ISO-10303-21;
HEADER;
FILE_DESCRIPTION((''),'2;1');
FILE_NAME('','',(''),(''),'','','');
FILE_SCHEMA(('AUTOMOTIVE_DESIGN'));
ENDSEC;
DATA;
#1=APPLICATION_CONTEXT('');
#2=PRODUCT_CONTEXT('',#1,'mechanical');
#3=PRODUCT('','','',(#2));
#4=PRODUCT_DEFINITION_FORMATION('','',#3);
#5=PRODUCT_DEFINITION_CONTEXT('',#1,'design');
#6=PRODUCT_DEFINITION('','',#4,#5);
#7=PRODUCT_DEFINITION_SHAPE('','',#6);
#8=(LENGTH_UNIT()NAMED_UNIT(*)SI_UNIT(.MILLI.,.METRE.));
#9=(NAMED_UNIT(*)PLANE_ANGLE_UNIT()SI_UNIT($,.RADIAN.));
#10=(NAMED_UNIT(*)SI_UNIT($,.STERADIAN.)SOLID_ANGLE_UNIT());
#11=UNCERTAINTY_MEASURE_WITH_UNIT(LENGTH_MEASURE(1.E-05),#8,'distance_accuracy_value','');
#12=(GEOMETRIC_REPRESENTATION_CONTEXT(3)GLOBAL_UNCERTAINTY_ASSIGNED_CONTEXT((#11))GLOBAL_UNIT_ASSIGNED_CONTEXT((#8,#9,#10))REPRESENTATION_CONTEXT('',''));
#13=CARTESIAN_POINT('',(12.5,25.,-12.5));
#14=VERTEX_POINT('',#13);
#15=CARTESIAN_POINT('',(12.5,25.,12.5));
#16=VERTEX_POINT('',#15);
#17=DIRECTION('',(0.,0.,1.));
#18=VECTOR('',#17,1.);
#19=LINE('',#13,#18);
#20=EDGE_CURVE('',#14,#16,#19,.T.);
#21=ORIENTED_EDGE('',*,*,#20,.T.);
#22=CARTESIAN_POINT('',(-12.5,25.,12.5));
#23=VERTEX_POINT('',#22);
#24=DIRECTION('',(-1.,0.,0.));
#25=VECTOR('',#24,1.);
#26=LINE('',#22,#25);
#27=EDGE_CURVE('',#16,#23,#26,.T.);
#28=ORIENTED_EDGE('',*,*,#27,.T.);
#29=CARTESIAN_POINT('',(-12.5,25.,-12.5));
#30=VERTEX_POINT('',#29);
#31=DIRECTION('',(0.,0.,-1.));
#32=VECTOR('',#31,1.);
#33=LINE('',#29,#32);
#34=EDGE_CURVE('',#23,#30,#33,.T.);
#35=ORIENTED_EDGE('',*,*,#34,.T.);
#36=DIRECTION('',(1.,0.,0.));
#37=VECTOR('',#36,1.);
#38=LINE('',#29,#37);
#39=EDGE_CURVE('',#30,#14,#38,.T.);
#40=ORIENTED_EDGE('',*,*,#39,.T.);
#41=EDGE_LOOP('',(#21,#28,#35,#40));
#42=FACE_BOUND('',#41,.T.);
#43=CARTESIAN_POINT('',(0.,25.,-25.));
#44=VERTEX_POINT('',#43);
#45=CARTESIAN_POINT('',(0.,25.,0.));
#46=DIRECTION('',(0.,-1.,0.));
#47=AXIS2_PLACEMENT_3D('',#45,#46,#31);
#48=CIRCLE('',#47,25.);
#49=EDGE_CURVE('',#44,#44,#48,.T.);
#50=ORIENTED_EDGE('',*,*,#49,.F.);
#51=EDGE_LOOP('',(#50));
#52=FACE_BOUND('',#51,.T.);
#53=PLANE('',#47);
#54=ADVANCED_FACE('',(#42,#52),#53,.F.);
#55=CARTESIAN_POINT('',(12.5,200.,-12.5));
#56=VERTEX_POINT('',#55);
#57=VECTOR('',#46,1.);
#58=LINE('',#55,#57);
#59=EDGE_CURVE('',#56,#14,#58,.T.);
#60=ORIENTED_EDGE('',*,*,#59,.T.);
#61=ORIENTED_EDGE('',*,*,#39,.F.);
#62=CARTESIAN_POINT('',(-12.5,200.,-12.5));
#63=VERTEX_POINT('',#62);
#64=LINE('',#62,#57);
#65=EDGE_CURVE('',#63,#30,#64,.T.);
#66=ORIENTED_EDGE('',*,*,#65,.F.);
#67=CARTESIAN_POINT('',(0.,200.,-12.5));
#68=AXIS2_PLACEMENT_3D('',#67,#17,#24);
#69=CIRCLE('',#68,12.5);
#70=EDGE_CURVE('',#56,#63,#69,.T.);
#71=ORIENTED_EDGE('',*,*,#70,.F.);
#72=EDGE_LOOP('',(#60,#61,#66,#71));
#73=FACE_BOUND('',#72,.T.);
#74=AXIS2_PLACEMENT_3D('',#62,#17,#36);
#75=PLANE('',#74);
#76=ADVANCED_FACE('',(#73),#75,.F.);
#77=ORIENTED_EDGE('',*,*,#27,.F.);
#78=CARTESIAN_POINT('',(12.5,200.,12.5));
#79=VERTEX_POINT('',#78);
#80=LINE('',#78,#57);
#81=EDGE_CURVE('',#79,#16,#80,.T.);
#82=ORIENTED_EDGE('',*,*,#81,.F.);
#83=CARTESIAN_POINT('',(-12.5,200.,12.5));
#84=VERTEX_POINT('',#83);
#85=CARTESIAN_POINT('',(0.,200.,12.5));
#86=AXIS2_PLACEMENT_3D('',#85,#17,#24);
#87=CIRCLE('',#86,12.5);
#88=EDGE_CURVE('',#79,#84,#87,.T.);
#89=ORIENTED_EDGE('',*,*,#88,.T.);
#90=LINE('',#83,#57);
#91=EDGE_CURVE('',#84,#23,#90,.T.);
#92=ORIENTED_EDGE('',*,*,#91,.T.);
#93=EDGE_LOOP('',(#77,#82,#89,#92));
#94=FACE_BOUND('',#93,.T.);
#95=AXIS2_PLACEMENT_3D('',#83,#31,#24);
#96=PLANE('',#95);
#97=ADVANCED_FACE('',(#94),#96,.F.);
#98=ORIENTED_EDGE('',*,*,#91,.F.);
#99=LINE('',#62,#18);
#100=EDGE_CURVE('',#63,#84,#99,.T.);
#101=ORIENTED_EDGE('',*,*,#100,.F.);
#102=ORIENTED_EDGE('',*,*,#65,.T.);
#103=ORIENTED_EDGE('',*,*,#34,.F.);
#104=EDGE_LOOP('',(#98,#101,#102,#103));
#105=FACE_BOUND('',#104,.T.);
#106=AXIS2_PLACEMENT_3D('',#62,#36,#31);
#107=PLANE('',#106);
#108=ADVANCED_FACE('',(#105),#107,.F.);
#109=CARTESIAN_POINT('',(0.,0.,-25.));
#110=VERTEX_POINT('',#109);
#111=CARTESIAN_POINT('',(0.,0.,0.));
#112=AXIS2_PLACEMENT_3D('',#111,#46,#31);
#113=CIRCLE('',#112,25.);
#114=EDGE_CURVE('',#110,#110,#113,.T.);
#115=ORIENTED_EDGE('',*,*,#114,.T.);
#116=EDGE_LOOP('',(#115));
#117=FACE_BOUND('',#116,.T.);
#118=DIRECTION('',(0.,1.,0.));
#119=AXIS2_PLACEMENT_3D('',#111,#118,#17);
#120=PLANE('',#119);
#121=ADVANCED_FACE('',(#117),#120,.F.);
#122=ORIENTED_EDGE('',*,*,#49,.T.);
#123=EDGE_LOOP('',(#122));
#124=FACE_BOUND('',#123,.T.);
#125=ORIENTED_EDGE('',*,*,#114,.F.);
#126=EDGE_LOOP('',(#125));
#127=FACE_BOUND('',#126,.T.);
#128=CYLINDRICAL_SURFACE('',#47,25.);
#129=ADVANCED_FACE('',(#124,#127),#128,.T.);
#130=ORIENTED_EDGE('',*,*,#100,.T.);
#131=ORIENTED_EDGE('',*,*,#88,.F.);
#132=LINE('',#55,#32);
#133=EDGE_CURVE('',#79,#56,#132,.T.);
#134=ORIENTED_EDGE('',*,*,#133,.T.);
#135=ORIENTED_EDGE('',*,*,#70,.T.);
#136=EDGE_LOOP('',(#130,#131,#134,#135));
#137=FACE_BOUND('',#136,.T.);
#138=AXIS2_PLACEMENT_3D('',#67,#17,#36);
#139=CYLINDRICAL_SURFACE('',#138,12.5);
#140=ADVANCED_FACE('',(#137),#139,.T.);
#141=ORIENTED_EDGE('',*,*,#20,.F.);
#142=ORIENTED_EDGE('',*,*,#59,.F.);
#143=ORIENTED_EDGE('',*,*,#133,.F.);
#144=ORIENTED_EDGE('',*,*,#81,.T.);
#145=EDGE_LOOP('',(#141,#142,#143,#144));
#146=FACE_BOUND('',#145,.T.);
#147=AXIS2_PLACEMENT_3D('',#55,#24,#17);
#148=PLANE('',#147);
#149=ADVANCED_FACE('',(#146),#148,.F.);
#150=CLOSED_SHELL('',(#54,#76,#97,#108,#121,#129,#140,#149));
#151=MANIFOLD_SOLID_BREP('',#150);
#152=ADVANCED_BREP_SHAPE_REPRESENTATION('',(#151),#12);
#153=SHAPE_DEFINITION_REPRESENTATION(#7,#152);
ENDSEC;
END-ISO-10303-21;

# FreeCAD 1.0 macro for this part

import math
import FreeCAD as App
import Part
import Sketcher
from FreeCAD import Vector

doc = App.newDocument("Part")
params = doc.addObject("Spreadsheet::Sheet", "Params")
for row, (alias, value) in enumerate([
    ("sketch1_width", "25 mm"),
    ("pad1_length", "200 mm"),
    ("sketch2_radius", "12.5 mm"),
    ("pad2_length", "25 mm"),
    ("sketch3_diameter", "50 mm"),
    ("pad3_length", "25 mm"),
], start=1):
    params.set(f"A{row}", alias)
    params.set(f"B{row}", "=" + value)
    params.setAlias(f"B{row}", alias)

body = doc.addObject("PartDesign::Body", "Body")

sketch1 = doc.addObject("Sketcher::SketchObject", "Sketch")
body.addObject(sketch1)
sketch1.AttachmentSupport = (doc.XZ_Plane, [""])
sketch1.MapMode = "FlatFace"
sketch1.addGeometry([
    Part.LineSegment(Vector(-12.5, -12.5, 0), Vector(-12.5, 12.5, 0)),
    Part.LineSegment(Vector(-12.5, 12.5, 0), Vector(12.5, 12.5, 0)),
    Part.LineSegment(Vector(12.5, 12.5, 0), Vector(12.5, -12.5, 0)),
    Part.LineSegment(Vector(12.5, -12.5, 0), Vector(-12.5, -12.5, 0)),
], False)
sketch1.addConstraint([
    Sketcher.Constraint("Coincident", 0, 2, 1, 1),
    Sketcher.Constraint("Coincident", 1, 2, 2, 1),
    Sketcher.Constraint("Coincident", 2, 2, 3, 1),
    Sketcher.Constraint("Coincident", 3, 2, 0, 1),
    Sketcher.Constraint("Vertical", 0),
    Sketcher.Constraint("Horizontal", 1),
    Sketcher.Constraint("Vertical", 2),
    Sketcher.Constraint("Horizontal", 3),
    Sketcher.Constraint("Symmetric", 0, 2, 2, 2, -1, 1),
    Sketcher.Constraint("Equal", 3, 0),
    Sketcher.Constraint("DistanceX", 1, 1, 1, 2, 25.0),
])
sketch1.setExpression("Constraints[10]", "Params.sketch1_width")
pad1 = doc.addObject("PartDesign::Pad", "Pad")
body.addObject(pad1)
pad1.Profile = sketch1
pad1.setExpression("Length", "Params.pad1_length")
pad1.Reversed = True

sketch2 = doc.addObject("Sketcher::SketchObject", "Sketch001")
body.addObject(sketch2)
sketch2.AttachmentSupport = (doc.XY_Plane, [""])
sketch2.MapMode = "FlatFace"
sketch2.AttachmentOffset = App.Placement(Vector(0, 0, 12.5), App.Rotation())
sketch2.addGeometry([
    Part.LineSegment(Vector(-12.5, 200, 0), Vector(12.5, 200, 0)),
    Part.ArcOfCircle(Part.Circle(Vector(0, 200, 0), Vector(0, 0, 1), 12.5), math.radians(0), math.radians(180)),
], False)
sketch2.addConstraint([
    Sketcher.Constraint("Coincident", 0, 1, 1, 2),
    Sketcher.Constraint("Coincident", 1, 1, 0, 2),
    Sketcher.Constraint("Horizontal", 0),
    Sketcher.Constraint("PointOnObject", 1, 3, -2),
    Sketcher.Constraint("Horizontal", 1, 3, 0, 1),
    Sketcher.Constraint("Radius", 1, 12.5),
    Sketcher.Constraint("DistanceY", -1, 1, 1, 3, 200.0),
])
sketch2.setExpression("Constraints[5]", "Params.sketch2_radius")
pad2 = doc.addObject("PartDesign::Pad", "Pad001")
body.addObject(pad2)
pad2.Profile = sketch2
pad2.setExpression("Length", "Params.pad2_length")
pad2.Reversed = True

sketch3 = doc.addObject("Sketcher::SketchObject", "Sketch002")
body.addObject(sketch3)
sketch3.AttachmentSupport = (doc.XZ_Plane, [""])
sketch3.MapMode = "FlatFace"
sketch3.addGeometry(Part.Circle(Vector(0, 0, 0), Vector(0, 0, 1), 25), False)
sketch3.addConstraint([
    Sketcher.Constraint("Coincident", 0, 3, -1, 1),
    Sketcher.Constraint("Diameter", 0, 50.0),
])
sketch3.setExpression("Constraints[1]", "Params.sketch3_diameter")
pad3 = doc.addObject("PartDesign::Pad", "Pad002")
body.addObject(pad3)
pad3.Profile = sketch3
pad3.setExpression("Length", "Params.pad3_length")
pad3.Reversed = True

doc.recompute()
